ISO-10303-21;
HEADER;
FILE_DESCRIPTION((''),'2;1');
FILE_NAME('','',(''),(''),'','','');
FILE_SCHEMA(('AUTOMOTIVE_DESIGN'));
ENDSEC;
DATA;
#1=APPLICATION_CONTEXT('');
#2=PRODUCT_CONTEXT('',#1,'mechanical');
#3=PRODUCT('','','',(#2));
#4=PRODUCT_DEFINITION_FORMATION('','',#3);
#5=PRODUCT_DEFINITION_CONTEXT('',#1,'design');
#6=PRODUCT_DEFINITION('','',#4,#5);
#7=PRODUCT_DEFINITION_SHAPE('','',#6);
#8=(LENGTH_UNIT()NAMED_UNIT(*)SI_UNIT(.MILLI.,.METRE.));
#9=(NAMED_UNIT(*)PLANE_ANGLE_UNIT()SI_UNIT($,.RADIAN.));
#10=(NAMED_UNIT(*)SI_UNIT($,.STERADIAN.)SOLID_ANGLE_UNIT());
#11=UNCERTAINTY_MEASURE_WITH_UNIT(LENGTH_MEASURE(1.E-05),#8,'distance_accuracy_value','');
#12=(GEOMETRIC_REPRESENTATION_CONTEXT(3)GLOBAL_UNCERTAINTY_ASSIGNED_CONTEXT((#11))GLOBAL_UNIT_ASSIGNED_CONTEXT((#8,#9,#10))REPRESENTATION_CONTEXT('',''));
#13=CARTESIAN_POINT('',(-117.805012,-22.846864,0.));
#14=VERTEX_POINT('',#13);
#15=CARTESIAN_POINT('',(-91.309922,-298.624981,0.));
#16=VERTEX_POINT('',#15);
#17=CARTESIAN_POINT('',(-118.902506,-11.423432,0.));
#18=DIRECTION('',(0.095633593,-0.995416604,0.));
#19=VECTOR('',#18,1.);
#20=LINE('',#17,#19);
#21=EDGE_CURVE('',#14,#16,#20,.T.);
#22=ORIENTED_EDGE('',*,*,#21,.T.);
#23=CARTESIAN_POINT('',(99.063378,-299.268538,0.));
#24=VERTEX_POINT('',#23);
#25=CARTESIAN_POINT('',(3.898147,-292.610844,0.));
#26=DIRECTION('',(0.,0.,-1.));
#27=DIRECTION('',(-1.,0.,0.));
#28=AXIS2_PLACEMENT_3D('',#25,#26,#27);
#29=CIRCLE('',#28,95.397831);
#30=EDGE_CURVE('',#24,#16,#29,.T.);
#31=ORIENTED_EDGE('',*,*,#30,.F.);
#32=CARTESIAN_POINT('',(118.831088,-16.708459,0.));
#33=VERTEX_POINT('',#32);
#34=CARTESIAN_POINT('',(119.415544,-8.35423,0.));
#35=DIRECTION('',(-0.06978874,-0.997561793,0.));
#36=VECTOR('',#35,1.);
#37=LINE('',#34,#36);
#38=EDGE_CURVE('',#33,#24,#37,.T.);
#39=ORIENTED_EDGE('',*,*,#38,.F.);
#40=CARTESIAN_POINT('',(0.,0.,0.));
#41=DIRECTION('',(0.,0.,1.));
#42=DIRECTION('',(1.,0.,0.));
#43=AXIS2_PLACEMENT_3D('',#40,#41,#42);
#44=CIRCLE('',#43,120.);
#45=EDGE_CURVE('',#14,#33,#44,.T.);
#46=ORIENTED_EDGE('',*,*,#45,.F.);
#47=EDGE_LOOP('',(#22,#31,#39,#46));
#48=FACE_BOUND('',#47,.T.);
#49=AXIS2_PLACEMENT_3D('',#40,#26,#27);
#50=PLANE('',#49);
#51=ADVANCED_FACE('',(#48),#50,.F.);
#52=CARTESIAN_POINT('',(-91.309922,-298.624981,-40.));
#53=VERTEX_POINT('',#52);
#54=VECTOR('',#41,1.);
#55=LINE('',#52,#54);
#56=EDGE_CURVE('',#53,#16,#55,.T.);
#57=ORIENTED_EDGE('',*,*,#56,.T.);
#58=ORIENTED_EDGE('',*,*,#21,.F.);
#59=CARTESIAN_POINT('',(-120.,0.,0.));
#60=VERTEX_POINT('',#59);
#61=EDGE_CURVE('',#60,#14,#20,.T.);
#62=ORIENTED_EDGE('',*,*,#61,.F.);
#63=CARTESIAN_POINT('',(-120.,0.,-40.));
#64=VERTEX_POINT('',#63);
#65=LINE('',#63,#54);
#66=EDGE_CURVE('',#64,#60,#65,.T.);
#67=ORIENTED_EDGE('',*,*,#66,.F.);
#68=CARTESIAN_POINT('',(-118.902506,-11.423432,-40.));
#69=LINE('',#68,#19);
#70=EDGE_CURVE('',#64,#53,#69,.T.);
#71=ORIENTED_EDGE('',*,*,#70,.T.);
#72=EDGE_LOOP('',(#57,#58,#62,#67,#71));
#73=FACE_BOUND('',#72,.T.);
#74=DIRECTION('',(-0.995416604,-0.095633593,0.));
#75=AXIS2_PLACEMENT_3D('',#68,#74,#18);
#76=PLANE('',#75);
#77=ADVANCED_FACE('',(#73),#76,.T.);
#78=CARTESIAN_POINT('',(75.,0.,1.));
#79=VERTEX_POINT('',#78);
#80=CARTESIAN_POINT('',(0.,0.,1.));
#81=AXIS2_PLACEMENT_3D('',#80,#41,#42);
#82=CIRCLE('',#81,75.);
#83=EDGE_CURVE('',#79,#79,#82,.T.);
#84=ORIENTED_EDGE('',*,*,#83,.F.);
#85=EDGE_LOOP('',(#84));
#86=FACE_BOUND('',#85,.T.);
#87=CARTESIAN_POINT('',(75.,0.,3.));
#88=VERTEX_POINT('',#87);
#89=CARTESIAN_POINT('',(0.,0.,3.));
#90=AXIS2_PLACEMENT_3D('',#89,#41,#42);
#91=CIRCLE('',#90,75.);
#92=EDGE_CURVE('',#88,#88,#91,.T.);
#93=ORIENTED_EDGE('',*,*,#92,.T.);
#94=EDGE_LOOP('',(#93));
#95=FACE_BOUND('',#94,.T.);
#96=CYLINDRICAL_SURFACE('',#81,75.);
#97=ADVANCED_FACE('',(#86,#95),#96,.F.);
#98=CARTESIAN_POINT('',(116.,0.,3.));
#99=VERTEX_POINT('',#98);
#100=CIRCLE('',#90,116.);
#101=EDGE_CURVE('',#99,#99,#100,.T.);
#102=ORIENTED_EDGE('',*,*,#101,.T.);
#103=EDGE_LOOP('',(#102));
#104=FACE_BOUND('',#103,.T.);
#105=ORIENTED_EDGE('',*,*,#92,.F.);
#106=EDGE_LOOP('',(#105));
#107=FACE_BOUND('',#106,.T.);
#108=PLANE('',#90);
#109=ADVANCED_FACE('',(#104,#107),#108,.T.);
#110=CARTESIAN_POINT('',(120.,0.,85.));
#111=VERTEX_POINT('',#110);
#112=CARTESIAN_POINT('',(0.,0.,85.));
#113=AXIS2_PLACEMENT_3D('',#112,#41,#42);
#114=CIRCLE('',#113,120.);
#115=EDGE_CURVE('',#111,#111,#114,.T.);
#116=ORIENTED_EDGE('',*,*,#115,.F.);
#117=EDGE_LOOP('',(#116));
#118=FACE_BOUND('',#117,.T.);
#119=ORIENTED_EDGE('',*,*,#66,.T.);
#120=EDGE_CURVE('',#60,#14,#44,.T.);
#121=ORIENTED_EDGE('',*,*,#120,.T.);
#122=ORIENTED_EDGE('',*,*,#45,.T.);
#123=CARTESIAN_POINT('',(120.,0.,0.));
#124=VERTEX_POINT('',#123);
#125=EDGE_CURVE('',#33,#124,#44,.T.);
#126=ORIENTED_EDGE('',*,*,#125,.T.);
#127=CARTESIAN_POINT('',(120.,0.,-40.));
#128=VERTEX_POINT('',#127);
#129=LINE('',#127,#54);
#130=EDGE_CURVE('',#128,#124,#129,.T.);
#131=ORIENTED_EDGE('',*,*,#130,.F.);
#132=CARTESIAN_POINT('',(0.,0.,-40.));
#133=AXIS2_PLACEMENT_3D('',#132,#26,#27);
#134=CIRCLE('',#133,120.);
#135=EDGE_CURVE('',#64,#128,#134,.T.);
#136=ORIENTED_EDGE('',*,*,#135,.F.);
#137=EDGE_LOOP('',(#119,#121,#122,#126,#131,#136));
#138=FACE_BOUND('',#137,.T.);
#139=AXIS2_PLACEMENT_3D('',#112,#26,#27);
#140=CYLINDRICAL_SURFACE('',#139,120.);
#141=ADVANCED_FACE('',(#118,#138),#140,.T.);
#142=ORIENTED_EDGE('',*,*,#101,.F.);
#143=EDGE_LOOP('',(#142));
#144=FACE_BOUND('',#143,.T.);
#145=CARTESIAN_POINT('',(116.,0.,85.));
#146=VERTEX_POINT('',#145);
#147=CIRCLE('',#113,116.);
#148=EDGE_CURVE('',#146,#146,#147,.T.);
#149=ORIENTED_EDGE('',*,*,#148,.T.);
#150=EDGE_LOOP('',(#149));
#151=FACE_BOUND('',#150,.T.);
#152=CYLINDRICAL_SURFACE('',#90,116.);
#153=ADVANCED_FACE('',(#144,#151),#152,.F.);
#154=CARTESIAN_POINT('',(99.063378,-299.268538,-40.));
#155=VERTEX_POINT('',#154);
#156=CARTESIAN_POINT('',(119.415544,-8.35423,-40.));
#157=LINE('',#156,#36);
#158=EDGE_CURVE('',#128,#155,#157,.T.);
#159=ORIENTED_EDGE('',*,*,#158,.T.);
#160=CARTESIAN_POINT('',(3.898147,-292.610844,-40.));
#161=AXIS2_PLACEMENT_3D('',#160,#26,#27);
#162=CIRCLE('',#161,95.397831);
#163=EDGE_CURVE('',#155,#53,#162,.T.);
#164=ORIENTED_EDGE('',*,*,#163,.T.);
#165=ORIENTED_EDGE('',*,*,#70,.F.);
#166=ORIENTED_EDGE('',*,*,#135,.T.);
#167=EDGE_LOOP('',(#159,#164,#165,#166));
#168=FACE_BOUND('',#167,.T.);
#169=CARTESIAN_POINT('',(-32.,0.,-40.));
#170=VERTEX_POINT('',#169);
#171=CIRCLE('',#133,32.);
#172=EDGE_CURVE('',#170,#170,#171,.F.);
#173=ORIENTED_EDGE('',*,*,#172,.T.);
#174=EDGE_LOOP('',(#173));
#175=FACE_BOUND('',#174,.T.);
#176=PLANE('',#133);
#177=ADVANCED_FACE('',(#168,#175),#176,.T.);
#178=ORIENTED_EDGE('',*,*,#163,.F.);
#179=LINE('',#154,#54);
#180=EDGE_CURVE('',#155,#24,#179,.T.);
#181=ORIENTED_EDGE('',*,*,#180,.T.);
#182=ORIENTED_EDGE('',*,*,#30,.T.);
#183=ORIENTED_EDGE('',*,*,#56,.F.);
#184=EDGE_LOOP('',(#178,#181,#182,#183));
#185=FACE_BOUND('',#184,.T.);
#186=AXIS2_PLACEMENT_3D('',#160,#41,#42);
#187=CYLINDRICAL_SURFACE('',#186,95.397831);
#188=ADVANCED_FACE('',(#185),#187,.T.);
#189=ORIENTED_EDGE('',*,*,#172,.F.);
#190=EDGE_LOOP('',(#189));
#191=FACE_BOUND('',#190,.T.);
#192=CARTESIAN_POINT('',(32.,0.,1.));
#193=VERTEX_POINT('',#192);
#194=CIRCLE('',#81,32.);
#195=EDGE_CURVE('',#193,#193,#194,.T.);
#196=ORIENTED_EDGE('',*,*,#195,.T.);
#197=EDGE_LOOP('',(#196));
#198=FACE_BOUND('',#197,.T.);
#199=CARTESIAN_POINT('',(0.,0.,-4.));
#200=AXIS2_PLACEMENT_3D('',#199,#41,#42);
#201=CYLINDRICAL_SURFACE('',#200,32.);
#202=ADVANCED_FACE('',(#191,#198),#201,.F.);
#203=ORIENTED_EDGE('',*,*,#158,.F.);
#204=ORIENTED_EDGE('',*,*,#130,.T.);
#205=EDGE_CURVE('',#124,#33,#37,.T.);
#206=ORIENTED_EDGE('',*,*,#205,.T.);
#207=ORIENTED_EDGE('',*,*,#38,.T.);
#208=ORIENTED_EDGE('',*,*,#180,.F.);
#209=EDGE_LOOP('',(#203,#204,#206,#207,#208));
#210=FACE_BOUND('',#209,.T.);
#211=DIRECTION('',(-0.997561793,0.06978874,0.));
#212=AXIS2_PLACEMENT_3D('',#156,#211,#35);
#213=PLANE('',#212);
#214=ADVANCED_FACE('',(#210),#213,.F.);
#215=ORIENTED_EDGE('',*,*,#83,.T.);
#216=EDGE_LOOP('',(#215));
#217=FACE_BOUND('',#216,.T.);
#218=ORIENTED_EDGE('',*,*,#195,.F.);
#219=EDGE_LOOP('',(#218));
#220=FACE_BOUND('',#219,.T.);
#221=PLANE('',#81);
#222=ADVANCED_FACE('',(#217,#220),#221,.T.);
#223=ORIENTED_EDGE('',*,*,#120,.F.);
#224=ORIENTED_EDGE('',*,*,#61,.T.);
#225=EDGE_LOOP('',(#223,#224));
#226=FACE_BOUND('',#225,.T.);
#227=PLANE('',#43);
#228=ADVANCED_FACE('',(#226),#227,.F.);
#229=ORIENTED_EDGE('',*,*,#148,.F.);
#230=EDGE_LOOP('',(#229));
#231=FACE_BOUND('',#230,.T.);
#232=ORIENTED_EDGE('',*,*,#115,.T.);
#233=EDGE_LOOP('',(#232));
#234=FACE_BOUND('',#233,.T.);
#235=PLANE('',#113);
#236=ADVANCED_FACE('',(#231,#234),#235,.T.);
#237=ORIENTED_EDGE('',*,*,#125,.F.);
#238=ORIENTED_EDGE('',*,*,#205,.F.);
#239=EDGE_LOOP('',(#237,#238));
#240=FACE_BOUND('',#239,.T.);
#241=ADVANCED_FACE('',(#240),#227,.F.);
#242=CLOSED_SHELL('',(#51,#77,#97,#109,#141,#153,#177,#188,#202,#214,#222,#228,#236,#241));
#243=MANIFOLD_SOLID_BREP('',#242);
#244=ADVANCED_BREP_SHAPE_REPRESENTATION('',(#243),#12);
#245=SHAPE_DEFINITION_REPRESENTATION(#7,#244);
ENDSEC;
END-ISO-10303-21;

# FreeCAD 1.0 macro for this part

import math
import FreeCAD as App
import Part
import Sketcher

V = App.Vector
Q = App.Units.Quantity

doc = App.newDocument("Part")
body = doc.addObject("PartDesign::Body", "Body")

sketch1 = body.newObject("Sketcher::SketchObject", "Sketch")
sketch1.AttachmentSupport = (doc.getObject("XY_Plane"), [""])
sketch1.MapMode = "FlatFace"
sketch1.addGeometry(Part.Circle(V(0, 0, 0), V(0, 0, 1), 120), False)
sketch1.addConstraint([
    Sketcher.Constraint("Coincident", 0, 3, -1, 1),
    Sketcher.Constraint("Diameter", 0, Q("240 mm")),
])
pad1 = body.newObject("PartDesign::Pad", "Pad")
pad1.Profile = sketch1
pad1.Length = 85

sketch2 = body.newObject("Sketcher::SketchObject", "Sketch001")
sketch2.AttachmentSupport = (doc.getObject("XY_Plane"), [""])
sketch2.MapMode = "FlatFace"
sketch2.AttachmentOffset = App.Placement(V(0, 0, 85), App.Rotation())
sketch2.addGeometry(Part.Circle(V(0, 0, 0), V(0, 0, 1), 116), False)
sketch2.addConstraint([
    Sketcher.Constraint("Coincident", 0, 3, -1, 1),
    Sketcher.Constraint("Diameter", 0, Q("232 mm")),
])
pocket1 = body.newObject("PartDesign::Pocket", "Pocket")
pocket1.Profile = sketch2
pocket1.Length = 82

sketch3 = body.newObject("Sketcher::SketchObject", "Sketch002")
sketch3.AttachmentSupport = (doc.getObject("XY_Plane"), [""])
sketch3.MapMode = "FlatFace"
sketch3.AttachmentOffset = App.Placement(V(0, 0, 3), App.Rotation())
sketch3.addGeometry(Part.Circle(V(0, 0, 0), V(0, 0, 1), 75), False)
sketch3.addConstraint([
    Sketcher.Constraint("Coincident", 0, 3, -1, 1),
    Sketcher.Constraint("Diameter", 0, Q("150 mm")),
])
pocket2 = body.newObject("PartDesign::Pocket", "Pocket001")
pocket2.Profile = sketch3
pocket2.Type = "TwoLengths"
pocket2.Length = 2
pocket2.Length2 = 2
pocket2.Reversed = True

sketch4 = body.newObject("Sketcher::SketchObject", "Sketch003")
sketch4.AttachmentSupport = (doc.getObject("XY_Plane"), [""])
sketch4.MapMode = "FlatFace"
sketch4.AttachmentOffset = App.Placement(V(0, 0, 1), App.Rotation())
sketch4.addGeometry(Part.Circle(V(0, 0, 0), V(0, 0, 1), 32), False)
sketch4.addConstraint([
    Sketcher.Constraint("Coincident", 0, 3, -1, 1),
    Sketcher.Constraint("Diameter", 0, Q("64 mm")),
])
pocket3 = body.newObject("PartDesign::Pocket", "Pocket002")
pocket3.Profile = sketch4
pocket3.Length = 5

sketch5 = body.newObject("Sketcher::SketchObject", "Sketch004")
sketch5.AttachmentSupport = (doc.getObject("XY_Plane"), [""])
sketch5.MapMode = "FlatFace"
sketch5.AttachmentOffset = App.Placement(V(0, 0, -40), App.Rotation())
sketch5.addGeometry([
    Part.ArcOfCircle(Part.Circle(V(0, 0, 0), V(0, 0, 1), 120), math.radians(0), math.radians(180)),
    Part.LineSegment(V(120, 0, 0), V(119, -17, 0)),
    Part.LineSegment(V(119, -17, 0), V(99, -299, 0)),
    Part.ArcOfCircle(Part.Circle(V(4, -293, 0), V(0, 0, 1), 95), math.radians(-176), math.radians(-4)),
    Part.LineSegment(V(-91, -299, 0), V(-118, -23, 0)),
    Part.LineSegment(V(-118, -23, 0), V(-120, 0, 0)),
    Part.Circle(V(0, 0, 0), V(0, 0, 1), 32),
], False)
sketch5.addConstraint([
    Sketcher.Constraint("Coincident", 0, 1, 1, 1),
    Sketcher.Constraint("Coincident", 1, 2, 2, 1),
    Sketcher.Constraint("Tangent", 2, 2, 3, 2),
    Sketcher.Constraint("Coincident", 3, 1, 4, 1),
    Sketcher.Constraint("Coincident", 4, 2, 5, 1),
    Sketcher.Constraint("Coincident", 5, 2, 0, 2),
    Sketcher.Constraint("Coincident", 0, 3, -1, 1),
    Sketcher.Constraint("Coincident", 6, 3, -1, 1),
    Sketcher.Constraint("PointOnObject", 0, 1, -1),
    Sketcher.Constraint("PointOnObject", 5, 2, -1),
    Sketcher.Constraint("Parallel", 1, 2),
    Sketcher.Constraint("Parallel", 4, 5),
    Sketcher.Constraint("Diameter", 6, Q("64 mm")),
    Sketcher.Constraint("Radius", 0, Q("120 mm")),
    Sketcher.Constraint("Radius", 3, Q("95.397831 mm")),
    Sketcher.Constraint("DistanceX", 3, 1, 2, 2, Q("190.3733 mm")),
    Sketcher.Constraint("DistanceX", 4, 2, 1, 2, Q("236.636099 mm")),
    Sketcher.Constraint("DistanceY", 1, 2, -1, 1, Q("16.708459 mm")),
    Sketcher.Constraint("DistanceX", -1, 1, 2, 2, Q("99.063378 mm")),
    Sketcher.Constraint("DistanceY", 2, 2, -1, 1, Q("299.268538 mm")),
])
pad2 = body.newObject("PartDesign::Pad", "Pad001")
pad2.Profile = sketch5
pad2.Length = 40

doc.recompute()
